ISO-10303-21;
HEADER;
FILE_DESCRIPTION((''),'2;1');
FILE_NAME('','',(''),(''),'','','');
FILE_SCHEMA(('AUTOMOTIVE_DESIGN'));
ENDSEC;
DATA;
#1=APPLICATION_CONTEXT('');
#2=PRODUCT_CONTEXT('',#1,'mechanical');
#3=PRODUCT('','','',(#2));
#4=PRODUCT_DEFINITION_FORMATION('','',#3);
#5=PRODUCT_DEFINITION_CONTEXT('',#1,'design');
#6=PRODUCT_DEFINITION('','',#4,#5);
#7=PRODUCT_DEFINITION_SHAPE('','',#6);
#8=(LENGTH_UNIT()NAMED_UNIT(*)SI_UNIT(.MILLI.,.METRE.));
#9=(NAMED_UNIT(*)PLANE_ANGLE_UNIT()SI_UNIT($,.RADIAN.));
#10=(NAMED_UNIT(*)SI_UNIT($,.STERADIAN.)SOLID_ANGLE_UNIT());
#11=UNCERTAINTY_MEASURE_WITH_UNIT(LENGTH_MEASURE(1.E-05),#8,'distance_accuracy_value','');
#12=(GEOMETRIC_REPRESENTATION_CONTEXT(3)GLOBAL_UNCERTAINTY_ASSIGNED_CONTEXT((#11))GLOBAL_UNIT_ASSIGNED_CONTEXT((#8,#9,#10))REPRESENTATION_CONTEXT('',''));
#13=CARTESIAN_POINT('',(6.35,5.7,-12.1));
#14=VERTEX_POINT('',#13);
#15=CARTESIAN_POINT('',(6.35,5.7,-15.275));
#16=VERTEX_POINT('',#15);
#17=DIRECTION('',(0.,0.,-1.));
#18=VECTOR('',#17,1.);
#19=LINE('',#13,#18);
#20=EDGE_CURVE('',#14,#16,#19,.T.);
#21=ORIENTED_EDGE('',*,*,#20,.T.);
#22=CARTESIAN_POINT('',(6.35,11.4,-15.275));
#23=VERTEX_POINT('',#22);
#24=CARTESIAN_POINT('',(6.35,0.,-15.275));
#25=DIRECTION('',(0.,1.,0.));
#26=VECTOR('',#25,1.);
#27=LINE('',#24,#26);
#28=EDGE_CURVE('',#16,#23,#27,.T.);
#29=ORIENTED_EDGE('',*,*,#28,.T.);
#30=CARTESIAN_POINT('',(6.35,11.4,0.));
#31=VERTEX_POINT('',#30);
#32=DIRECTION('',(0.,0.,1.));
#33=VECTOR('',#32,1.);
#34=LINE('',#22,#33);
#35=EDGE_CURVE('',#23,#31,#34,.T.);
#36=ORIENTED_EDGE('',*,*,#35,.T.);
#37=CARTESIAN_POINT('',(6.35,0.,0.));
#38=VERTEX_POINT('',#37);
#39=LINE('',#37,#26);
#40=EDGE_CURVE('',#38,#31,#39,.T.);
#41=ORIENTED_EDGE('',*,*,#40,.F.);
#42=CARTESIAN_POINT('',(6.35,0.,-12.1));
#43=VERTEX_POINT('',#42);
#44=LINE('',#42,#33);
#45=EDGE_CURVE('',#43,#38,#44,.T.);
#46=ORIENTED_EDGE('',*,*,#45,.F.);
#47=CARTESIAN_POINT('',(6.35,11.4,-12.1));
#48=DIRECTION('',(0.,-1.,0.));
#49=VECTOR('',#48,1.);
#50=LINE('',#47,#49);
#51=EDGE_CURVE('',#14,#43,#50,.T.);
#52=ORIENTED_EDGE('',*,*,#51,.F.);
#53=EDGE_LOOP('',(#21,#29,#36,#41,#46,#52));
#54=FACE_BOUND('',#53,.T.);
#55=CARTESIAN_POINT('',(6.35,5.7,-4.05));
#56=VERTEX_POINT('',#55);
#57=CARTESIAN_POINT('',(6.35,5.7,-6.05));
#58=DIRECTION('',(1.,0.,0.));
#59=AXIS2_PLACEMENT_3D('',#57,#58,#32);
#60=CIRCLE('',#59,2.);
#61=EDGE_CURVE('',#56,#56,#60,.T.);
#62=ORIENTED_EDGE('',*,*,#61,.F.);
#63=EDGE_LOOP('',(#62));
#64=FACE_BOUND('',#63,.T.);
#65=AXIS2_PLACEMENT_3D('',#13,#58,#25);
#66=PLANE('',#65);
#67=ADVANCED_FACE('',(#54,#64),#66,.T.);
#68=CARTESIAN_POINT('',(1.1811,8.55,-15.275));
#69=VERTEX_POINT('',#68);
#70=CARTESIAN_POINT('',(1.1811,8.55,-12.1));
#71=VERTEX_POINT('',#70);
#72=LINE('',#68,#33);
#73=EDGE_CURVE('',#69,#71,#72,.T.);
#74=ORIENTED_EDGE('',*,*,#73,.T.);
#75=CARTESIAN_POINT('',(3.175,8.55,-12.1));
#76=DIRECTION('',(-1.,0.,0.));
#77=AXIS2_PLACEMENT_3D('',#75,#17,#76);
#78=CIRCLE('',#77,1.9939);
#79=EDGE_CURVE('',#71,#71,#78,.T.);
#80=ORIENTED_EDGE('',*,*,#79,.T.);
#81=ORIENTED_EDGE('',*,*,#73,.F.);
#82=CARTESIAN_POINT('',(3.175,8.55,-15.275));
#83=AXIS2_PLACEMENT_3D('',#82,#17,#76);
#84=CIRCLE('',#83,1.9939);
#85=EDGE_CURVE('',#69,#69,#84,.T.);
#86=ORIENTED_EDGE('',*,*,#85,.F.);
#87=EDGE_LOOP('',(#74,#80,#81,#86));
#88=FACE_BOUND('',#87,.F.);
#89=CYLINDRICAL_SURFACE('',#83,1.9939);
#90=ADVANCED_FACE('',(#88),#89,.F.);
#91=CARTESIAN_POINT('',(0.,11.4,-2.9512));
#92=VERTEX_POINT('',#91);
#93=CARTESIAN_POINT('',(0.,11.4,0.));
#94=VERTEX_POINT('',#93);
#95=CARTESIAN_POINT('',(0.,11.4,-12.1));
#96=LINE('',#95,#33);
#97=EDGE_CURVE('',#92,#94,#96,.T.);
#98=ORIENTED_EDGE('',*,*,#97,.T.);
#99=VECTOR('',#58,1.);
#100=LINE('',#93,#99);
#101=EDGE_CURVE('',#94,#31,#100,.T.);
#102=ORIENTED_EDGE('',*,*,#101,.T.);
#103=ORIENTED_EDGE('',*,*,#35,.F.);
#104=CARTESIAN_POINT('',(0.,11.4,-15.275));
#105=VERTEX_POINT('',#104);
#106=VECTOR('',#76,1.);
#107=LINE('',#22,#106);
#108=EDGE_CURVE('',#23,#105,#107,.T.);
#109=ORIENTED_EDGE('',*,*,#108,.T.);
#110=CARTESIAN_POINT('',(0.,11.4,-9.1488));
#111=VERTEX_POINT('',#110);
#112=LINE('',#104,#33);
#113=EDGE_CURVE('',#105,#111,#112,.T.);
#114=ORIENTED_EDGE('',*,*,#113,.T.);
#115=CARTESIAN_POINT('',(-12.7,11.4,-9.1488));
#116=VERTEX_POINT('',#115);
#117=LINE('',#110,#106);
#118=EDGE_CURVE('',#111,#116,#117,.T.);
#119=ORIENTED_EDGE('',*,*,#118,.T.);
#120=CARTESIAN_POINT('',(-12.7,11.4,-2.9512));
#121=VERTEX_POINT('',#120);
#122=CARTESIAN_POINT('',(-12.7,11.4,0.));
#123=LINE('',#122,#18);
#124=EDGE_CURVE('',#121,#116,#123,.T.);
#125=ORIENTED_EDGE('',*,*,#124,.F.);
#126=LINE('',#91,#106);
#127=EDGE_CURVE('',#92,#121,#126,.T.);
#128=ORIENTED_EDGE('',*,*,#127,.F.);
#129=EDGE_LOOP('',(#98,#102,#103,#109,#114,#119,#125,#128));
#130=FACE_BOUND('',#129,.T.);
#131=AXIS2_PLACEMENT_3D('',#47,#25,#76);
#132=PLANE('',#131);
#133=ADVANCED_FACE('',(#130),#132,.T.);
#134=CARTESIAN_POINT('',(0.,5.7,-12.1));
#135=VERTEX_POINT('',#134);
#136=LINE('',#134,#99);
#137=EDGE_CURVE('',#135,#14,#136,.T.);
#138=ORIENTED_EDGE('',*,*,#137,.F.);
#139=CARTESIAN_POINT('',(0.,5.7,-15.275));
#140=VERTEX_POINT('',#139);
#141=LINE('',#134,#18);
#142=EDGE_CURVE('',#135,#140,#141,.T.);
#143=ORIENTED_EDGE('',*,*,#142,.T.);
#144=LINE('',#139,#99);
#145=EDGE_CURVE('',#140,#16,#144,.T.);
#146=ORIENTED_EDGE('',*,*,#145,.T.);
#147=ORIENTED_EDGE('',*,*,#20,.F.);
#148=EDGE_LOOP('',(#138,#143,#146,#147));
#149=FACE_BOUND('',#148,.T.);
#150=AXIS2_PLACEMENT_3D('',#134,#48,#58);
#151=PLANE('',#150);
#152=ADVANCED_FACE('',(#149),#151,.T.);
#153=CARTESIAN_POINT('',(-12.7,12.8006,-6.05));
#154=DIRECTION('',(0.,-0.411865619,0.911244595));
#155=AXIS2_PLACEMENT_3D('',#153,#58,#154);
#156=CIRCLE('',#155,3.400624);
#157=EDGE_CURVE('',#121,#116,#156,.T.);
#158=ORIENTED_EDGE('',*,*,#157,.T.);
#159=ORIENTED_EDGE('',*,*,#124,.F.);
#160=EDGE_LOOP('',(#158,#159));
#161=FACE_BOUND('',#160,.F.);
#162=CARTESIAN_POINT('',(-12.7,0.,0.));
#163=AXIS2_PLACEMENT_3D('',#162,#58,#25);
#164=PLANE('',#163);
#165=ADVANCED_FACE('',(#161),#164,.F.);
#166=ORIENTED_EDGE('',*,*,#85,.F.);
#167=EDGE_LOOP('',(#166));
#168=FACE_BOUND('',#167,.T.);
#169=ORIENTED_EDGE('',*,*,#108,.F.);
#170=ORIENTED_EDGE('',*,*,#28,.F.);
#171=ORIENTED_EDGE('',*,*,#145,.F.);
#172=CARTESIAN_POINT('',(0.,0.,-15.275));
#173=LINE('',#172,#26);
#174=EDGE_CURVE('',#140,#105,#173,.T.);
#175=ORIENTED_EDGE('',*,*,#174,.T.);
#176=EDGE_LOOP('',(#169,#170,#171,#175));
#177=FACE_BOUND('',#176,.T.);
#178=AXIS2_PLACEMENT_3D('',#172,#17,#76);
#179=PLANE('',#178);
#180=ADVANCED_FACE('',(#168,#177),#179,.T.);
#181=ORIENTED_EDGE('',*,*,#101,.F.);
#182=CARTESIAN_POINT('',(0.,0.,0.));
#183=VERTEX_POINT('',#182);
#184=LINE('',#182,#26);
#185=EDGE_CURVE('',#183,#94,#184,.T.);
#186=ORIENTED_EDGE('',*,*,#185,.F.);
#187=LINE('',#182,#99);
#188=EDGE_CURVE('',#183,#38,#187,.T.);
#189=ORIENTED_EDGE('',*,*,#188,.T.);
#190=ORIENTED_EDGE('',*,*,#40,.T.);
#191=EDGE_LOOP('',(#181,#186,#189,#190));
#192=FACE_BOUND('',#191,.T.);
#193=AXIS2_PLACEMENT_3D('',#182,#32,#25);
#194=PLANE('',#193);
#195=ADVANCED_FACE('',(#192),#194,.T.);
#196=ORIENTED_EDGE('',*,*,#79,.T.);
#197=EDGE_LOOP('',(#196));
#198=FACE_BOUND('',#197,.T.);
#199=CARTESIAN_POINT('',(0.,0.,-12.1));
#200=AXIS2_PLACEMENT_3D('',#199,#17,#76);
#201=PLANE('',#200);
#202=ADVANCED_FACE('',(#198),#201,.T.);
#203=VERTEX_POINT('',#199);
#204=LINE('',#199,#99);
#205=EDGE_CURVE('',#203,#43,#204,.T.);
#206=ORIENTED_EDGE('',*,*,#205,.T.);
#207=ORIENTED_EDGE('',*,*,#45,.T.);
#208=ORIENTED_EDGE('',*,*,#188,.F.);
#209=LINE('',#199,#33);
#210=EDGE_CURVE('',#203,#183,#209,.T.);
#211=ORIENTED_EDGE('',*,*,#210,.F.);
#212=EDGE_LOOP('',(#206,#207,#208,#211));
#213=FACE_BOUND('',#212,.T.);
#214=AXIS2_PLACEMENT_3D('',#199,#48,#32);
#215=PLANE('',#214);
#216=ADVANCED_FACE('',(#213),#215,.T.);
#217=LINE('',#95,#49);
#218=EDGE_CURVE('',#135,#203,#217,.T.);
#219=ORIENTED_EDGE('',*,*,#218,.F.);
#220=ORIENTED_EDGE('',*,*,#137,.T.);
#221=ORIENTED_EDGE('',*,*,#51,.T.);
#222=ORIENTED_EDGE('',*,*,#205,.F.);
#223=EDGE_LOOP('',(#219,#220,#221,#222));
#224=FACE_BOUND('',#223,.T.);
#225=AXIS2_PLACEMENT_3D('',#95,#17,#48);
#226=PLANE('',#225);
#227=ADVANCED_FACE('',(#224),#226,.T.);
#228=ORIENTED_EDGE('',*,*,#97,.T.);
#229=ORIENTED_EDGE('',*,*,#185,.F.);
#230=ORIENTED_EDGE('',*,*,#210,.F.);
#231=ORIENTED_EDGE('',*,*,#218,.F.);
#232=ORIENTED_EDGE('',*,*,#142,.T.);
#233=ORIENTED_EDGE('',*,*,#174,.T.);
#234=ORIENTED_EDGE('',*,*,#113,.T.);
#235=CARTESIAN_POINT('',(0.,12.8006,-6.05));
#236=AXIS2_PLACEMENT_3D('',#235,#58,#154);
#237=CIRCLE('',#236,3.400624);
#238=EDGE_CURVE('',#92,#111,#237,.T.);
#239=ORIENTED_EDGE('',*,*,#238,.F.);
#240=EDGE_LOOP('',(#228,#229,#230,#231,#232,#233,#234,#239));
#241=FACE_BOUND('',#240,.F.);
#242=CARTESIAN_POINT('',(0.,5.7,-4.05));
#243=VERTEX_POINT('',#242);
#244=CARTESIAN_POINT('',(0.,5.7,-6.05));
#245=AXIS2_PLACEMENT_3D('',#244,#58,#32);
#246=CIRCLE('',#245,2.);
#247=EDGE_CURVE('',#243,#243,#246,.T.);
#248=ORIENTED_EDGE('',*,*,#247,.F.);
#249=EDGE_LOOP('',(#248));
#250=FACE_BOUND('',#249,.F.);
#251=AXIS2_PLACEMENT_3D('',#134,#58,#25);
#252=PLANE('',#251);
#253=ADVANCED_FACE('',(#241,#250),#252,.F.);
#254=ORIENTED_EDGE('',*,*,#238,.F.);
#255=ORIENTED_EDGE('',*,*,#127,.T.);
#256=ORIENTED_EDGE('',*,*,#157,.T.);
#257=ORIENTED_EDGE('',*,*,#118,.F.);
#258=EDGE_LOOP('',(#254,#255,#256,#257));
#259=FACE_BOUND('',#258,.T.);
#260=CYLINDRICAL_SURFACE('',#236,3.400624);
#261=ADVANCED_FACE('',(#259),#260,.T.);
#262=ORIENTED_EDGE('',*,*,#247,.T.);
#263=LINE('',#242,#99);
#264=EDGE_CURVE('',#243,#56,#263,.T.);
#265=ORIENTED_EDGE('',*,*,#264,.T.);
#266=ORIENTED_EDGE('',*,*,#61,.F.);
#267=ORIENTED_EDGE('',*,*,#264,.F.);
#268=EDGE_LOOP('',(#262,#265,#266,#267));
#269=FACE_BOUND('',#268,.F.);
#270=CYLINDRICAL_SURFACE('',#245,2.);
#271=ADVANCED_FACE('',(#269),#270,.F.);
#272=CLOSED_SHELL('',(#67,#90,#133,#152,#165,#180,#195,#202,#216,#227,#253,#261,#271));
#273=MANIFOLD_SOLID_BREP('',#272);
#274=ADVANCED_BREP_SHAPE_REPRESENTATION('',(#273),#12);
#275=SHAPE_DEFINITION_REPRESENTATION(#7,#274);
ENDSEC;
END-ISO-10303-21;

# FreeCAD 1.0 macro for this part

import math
import FreeCAD as App
import Part
import Sketcher

V = App.Vector
Q = App.Units.Quantity


def add_polygon(sketch, points):
    """Adds a closed chain of lines whose ends are joined by coincident constraints."""
    first, n = sketch.GeometryCount, len(points)
    for a, b in zip(points, points[1:] + points[:1]):
        sketch.addGeometry(Part.LineSegment(App.Vector(*a, 0), App.Vector(*b, 0)), False)
    for i in range(n):
        sketch.addConstraint(Sketcher.Constraint("Coincident", first + i, 2, first + (i + 1) % n, 1))

doc = App.newDocument("Part")
params = doc.addObject("Spreadsheet::Sheet", "Params")
for row, (alias, value) in enumerate([
    ("pad1_length", "0.25 in"),
    ("sketch2_height", "0.244 in"),
    ("pad2_length", "0.5 in"),
    ("hole_diameter", "4 mm"),
    ("sketch4_width", "0.25 in"),
    ("pad3_length", "0.125 in"),
    ("sketch5_diameter", "0.157 in"),
    ("pocket1_length", "0.125 in"),
], start=1):
    params.set(f"A{row}", alias)
    params.set(f"B{row}", "=" + value)
    params.setAlias(f"B{row}", alias)

body = doc.addObject("PartDesign::Body", "Body")

# Sketch on YZ plane
sketch1 = body.newObject("Sketcher::SketchObject", "Sketch")
sketch1.AttachmentSupport = (doc.getObject("YZ_Plane"), [""])
sketch1.MapMode = "FlatFace"
add_polygon(sketch1, [(11, 0), (0, 0), (0, -12), (11, -12)])  # lines 0-3
sketch1.addConstraint([
    Sketcher.Constraint("Horizontal", 0),
    Sketcher.Constraint("Vertical", 1),
    Sketcher.Constraint("Horizontal", 2),
    Sketcher.Constraint("Vertical", 3),
    Sketcher.Constraint("Coincident", 0, 2, -1, 1),
    Sketcher.Constraint("DistanceX", 0, 2, 0, 1, 11.4),
    Sketcher.Constraint("DistanceY", 1, 2, 1, 1, 12.1),
])
pad1 = body.newObject("PartDesign::Pad", "Pad")
pad1.Profile = sketch1
pad1.setExpression("Length", "Params.pad1_length")

# Sketch on YZ plane
sketch2 = body.newObject("Sketcher::SketchObject", "Sketch001")
sketch2.AttachmentSupport = (doc.getObject("YZ_Plane"), [""])
sketch2.MapMode = "FlatFace"
sketch2.addGeometry([
    Part.LineSegment(V(11.4, -9.1, 0), V(11.4, -3, 0)),
    Part.ArcOfCircle(Part.Circle(V(12.8, -6, 0), V(0, 0, 1), 3.4), math.radians(114), math.radians(246)),
], False)
sketch2.addConstraint([
    Sketcher.Constraint("Coincident", 0, 1, 1, 2),
    Sketcher.Constraint("Coincident", 1, 1, 0, 2),
    Sketcher.Constraint("Vertical", 0),
    Sketcher.Constraint("DistanceY", 0, 1, 0, 2, Q("0.244 in")),
    Sketcher.Constraint("DistanceY", 1, 1, -1, 1, Q("0.1162 in")),
    Sketcher.Constraint("DistanceX", -1, 1, 0, 1, 11.4),
    Sketcher.Constraint("Radius", 1, 3.4006),
])
sketch2.setExpression("Constraints[3]", "Params.sketch2_height")
pad2 = body.newObject("PartDesign::Pad", "Pad001")
pad2.Profile = sketch2
pad2.setExpression("Length", "Params.pad2_length")
pad2.Reversed = True

# Sketch on YZ plane
sketch3 = body.newObject("Sketcher::SketchObject", "Sketch002")
sketch3.AttachmentSupport = (doc.getObject("YZ_Plane"), [""])
sketch3.MapMode = "FlatFace"
sketch3.addGeometry(Part.Circle(V(5.7, -6, 0), V(0, 0, 1), 2), False)
sketch3.addConstraint([
    Sketcher.Constraint("Diameter", 0, 4.0),
    Sketcher.Constraint("DistanceX", -1, 1, 0, 3, Q("0.2244 in")),
    Sketcher.Constraint("DistanceY", 0, 3, -1, 1, Q("0.2382 in")),
])
doc.recompute()
hole = body.newObject("PartDesign::Hole", "Hole")
hole.Profile = sketch3
hole.ThreadType = "None"
hole.setExpression("Diameter", "Params.hole_diameter")
hole.DepthType = "ThroughAll"
hole.Reversed = True

# Sketch on XY plane
sketch4 = body.newObject("Sketcher::SketchObject", "Sketch003")
sketch4.AttachmentSupport = (doc.getObject("XY_Plane"), [""])
sketch4.MapMode = "FlatFace"
sketch4.AttachmentOffset = App.Placement(V(0, 0, -12.1), App.Rotation())
add_polygon(sketch4, [(6, 11), (6, 6), (0, 6), (0, 11)])  # lines 0-3
sketch4.addConstraint([
    Sketcher.Constraint("Vertical", 0),
    Sketcher.Constraint("Horizontal", 1),
    Sketcher.Constraint("Vertical", 2),
    Sketcher.Constraint("Horizontal", 3),
    Sketcher.Constraint("PointOnObject", 1, 2, -2),
    Sketcher.Constraint("DistanceY", 0, 2, 0, 1, Q("0.2244 in")),
    Sketcher.Constraint("DistanceX", 1, 2, 1, 1, Q("0.25 in")),
    Sketcher.Constraint("DistanceY", -1, 1, 0, 2, Q("0.2244 in")),
])
sketch4.setExpression("Constraints[10]", "Params.sketch4_width")
pad3 = body.newObject("PartDesign::Pad", "Pad002")
pad3.Profile = sketch4
pad3.setExpression("Length", "Params.pad3_length")
pad3.Reversed = True

# Sketch on XY plane
sketch5 = body.newObject("Sketcher::SketchObject", "Sketch004")
sketch5.AttachmentSupport = (doc.getObject("XY_Plane"), [""])
sketch5.MapMode = "FlatFace"
sketch5.AttachmentOffset = App.Placement(V(0, 0, -15.275), App.Rotation())
sketch5.addGeometry(Part.Circle(V(3.2, 8.6, 0), V(0, 0, 1), 2), False)
sketch5.addConstraint([
    Sketcher.Constraint("Diameter", 0, Q("0.157 in")),
    Sketcher.Constraint("DistanceX", -1, 1, 0, 3, Q("0.125 in")),
    Sketcher.Constraint("DistanceY", -1, 1, 0, 3, 8.55),
])
sketch5.setExpression("Constraints[0]", "Params.sketch5_diameter")
pocket1 = body.newObject("PartDesign::Pocket", "Pocket")
pocket1.Profile = sketch5
pocket1.setExpression("Length", "Params.pocket1_length")
pocket1.Reversed = True

doc.recompute()
